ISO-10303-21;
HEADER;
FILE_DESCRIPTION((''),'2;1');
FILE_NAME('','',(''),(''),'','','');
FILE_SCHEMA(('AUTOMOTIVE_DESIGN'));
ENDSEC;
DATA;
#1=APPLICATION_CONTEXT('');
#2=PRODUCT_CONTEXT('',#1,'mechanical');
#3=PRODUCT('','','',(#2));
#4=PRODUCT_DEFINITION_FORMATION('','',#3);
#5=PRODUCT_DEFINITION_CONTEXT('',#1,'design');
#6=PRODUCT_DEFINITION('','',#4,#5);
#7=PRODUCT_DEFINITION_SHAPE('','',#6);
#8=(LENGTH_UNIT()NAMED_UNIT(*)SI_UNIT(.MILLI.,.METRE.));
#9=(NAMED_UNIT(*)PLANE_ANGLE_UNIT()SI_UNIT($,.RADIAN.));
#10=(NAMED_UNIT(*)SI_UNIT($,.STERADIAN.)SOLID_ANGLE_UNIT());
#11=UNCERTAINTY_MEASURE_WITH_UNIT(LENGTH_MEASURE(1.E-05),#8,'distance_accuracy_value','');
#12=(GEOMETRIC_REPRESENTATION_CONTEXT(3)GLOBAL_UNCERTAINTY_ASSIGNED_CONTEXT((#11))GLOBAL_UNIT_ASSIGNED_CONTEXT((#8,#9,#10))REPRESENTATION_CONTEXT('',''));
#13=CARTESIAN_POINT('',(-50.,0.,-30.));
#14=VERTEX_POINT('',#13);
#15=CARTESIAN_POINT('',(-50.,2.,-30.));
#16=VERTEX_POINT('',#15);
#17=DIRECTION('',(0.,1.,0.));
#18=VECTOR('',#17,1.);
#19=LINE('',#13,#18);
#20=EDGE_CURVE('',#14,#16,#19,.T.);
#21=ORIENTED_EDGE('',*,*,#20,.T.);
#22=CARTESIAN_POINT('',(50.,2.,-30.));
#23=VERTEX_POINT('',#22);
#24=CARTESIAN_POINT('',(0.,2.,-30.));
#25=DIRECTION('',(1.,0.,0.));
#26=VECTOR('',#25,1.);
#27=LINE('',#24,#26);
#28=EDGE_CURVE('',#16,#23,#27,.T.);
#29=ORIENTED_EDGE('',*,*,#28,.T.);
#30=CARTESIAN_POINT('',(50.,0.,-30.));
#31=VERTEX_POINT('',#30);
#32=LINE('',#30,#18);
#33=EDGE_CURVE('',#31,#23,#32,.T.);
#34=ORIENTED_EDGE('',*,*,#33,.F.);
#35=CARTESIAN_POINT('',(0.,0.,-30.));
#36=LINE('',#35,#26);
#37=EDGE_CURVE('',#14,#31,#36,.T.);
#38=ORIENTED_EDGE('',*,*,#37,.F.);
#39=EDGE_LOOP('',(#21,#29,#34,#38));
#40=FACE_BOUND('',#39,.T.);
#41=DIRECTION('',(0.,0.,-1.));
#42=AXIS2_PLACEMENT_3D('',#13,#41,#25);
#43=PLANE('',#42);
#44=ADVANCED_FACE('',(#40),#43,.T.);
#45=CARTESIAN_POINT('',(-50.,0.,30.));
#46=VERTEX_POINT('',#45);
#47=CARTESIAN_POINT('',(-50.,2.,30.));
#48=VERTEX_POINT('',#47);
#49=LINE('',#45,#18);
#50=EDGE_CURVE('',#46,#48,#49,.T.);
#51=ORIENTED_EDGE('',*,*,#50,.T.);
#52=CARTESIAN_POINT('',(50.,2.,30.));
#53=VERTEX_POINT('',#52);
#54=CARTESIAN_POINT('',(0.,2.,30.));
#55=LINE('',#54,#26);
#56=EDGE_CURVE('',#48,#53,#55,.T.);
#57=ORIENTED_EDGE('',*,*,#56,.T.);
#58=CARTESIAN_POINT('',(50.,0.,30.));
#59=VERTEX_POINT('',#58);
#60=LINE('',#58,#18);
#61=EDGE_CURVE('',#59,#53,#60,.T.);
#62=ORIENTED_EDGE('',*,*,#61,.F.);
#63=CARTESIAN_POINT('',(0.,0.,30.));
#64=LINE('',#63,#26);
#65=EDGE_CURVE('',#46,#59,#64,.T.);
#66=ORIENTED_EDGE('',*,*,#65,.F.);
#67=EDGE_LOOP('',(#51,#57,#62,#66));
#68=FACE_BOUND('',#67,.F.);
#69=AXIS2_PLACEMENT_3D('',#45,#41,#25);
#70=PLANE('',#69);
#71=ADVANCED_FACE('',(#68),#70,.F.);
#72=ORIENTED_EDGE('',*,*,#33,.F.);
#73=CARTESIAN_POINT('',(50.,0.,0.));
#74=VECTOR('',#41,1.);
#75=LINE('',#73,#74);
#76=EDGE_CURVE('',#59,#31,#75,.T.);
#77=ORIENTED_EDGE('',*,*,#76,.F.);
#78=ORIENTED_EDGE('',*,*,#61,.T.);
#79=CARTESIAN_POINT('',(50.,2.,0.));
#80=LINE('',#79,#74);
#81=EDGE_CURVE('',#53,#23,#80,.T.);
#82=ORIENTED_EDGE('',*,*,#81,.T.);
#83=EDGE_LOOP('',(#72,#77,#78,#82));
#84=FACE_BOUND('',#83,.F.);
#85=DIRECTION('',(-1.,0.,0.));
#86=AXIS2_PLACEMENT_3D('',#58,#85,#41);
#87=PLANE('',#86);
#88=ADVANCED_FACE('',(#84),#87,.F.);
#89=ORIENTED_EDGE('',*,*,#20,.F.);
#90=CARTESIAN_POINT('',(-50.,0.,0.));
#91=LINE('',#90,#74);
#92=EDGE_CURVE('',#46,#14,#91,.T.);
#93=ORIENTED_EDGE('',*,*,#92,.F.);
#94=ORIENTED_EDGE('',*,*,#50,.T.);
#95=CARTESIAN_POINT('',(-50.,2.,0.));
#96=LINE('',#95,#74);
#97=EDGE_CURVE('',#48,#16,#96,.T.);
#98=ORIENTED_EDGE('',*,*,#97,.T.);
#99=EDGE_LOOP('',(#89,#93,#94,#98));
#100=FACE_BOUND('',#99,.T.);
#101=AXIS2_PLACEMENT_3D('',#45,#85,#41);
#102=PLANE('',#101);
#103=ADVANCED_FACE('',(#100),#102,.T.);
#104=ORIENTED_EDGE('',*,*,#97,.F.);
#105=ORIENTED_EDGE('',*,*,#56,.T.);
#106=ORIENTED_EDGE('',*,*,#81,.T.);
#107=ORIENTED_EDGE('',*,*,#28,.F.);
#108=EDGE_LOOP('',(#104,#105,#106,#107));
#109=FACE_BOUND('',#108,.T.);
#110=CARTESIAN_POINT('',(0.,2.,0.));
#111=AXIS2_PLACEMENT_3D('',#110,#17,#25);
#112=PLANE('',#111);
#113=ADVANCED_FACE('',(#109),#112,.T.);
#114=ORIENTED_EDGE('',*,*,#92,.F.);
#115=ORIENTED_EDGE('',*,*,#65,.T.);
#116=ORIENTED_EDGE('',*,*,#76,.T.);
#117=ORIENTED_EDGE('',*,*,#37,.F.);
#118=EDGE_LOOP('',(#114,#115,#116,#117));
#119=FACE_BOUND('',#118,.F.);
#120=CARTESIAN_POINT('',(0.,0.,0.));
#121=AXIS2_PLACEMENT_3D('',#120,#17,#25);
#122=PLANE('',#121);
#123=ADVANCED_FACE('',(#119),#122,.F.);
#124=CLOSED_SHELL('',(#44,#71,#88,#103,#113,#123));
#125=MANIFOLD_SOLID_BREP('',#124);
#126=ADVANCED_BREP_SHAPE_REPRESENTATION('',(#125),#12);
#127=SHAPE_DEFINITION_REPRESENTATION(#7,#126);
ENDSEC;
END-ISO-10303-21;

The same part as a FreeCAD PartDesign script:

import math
import FreeCAD as App
import Part
import Sketcher
from FreeCAD import Vector

doc = App.newDocument("Part")
body = doc.addObject("PartDesign::Body", "Body")

# Sketch on XZ plane
sketch1 = body.newObject("Sketcher::SketchObject", "Sketch")
sketch1.AttachmentSupport = (doc.getObject("XZ_Plane"), [""])
sketch1.MapMode = "FlatFace"
sketch1.addGeometry([
    Part.LineSegment(Vector(29.5, -15, 0), Vector(-29.5, -15, 0)),  # 0
    Part.ArcOfCircle(Part.Circle(Vector(-29.5, -12, 0), Vector(0, 0, 1), 3), math.radians(180), math.radians(270)),  # 1
    Part.LineSegment(Vector(-32.5, -12, 0), Vector(-32.5, 12, 0)),  # 2
    Part.ArcOfCircle(Part.Circle(Vector(-29.5, 12, 0), Vector(0, 0, 1), 3), math.radians(90), math.radians(180)),  # 3
    Part.LineSegment(Vector(-29.5, 15, 0), Vector(29.5, 15, 0)),  # 4
    Part.ArcOfCircle(Part.Circle(Vector(29.5, 12, 0), Vector(0, 0, 1), 3), math.radians(0), math.radians(90)),  # 5
    Part.LineSegment(Vector(32.5, 12, 0), Vector(32.5, -12, 0)),  # 6
    Part.ArcOfCircle(Part.Circle(Vector(29.5, -12, 0), Vector(0, 0, 1), 3), math.radians(-90), math.radians(0)),  # 7
], False)
sketch1.addConstraint([
    Sketcher.Constraint("Tangent", 0, 2, 1, 2),
    Sketcher.Constraint("Tangent", 1, 1, 2, 1),
    Sketcher.Constraint("Tangent", 2, 2, 3, 2),
    Sketcher.Constraint("Tangent", 3, 1, 4, 1),
    Sketcher.Constraint("Tangent", 4, 2, 5, 2),
    Sketcher.Constraint("Tangent", 5, 1, 6, 1),
    Sketcher.Constraint("Tangent", 6, 2, 7, 2),
    Sketcher.Constraint("Tangent", 7, 1, 0, 1),
    Sketcher.Constraint("Horizontal", 0),
    Sketcher.Constraint("Vertical", 2),
    Sketcher.Constraint("Horizontal", 4),
    Sketcher.Constraint("Vertical", 6),
    Sketcher.Constraint("Equal", 1, 3),
    Sketcher.Constraint("Equal", 3, 5),
    Sketcher.Constraint("Equal", 5, 7),
    Sketcher.Constraint("Symmetric", 1, 3, 5, 3, -1, 1),
    Sketcher.Constraint("Radius", 1, 3.0),
    Sketcher.Constraint("DistanceX", 0, 2, 0, 1, 59.0),
    Sketcher.Constraint("DistanceY", 2, 1, 2, 2, 24.0),
])
pad1 = body.newObject("PartDesign::Pad", "Pad")
pad1.Profile = sketch1
pad1.Length = 2
pad1.Reversed = True

# Sketch on XZ plane
sketch2 = body.newObject("Sketcher::SketchObject", "Sketch001")
sketch2.AttachmentSupport = (doc.getObject("XZ_Plane"), [""])
sketch2.MapMode = "FlatFace"
sketch2.addGeometry([
    Part.LineSegment(Vector(-50, -30, 0), Vector(-50, 30, 0)),
    Part.LineSegment(Vector(-50, 30, 0), Vector(50, 30, 0)),
    Part.LineSegment(Vector(50, 30, 0), Vector(50, -30, 0)),
    Part.LineSegment(Vector(50, -30, 0), Vector(-50, -30, 0)),
], False)
sketch2.addConstraint([
    Sketcher.Constraint("Coincident", 0, 2, 1, 1),
    Sketcher.Constraint("Coincident", 1, 2, 2, 1),
    Sketcher.Constraint("Coincident", 2, 2, 3, 1),
    Sketcher.Constraint("Coincident", 3, 2, 0, 1),
    Sketcher.Constraint("Vertical", 0),
    Sketcher.Constraint("Horizontal", 1),
    Sketcher.Constraint("Vertical", 2),
    Sketcher.Constraint("Horizontal", 3),
    Sketcher.Constraint("Symmetric", 0, 2, 2, 2, -1, 1),
    Sketcher.Constraint("DistanceX", 1, 1, 1, 2, 100.0),
    Sketcher.Constraint("DistanceY", 0, 1, 0, 2, 60.0),
])
pad2 = body.newObject("PartDesign::Pad", "Pad001")
pad2.Profile = sketch2
pad2.Length = 2
pad2.Reversed = True

doc.recompute()
